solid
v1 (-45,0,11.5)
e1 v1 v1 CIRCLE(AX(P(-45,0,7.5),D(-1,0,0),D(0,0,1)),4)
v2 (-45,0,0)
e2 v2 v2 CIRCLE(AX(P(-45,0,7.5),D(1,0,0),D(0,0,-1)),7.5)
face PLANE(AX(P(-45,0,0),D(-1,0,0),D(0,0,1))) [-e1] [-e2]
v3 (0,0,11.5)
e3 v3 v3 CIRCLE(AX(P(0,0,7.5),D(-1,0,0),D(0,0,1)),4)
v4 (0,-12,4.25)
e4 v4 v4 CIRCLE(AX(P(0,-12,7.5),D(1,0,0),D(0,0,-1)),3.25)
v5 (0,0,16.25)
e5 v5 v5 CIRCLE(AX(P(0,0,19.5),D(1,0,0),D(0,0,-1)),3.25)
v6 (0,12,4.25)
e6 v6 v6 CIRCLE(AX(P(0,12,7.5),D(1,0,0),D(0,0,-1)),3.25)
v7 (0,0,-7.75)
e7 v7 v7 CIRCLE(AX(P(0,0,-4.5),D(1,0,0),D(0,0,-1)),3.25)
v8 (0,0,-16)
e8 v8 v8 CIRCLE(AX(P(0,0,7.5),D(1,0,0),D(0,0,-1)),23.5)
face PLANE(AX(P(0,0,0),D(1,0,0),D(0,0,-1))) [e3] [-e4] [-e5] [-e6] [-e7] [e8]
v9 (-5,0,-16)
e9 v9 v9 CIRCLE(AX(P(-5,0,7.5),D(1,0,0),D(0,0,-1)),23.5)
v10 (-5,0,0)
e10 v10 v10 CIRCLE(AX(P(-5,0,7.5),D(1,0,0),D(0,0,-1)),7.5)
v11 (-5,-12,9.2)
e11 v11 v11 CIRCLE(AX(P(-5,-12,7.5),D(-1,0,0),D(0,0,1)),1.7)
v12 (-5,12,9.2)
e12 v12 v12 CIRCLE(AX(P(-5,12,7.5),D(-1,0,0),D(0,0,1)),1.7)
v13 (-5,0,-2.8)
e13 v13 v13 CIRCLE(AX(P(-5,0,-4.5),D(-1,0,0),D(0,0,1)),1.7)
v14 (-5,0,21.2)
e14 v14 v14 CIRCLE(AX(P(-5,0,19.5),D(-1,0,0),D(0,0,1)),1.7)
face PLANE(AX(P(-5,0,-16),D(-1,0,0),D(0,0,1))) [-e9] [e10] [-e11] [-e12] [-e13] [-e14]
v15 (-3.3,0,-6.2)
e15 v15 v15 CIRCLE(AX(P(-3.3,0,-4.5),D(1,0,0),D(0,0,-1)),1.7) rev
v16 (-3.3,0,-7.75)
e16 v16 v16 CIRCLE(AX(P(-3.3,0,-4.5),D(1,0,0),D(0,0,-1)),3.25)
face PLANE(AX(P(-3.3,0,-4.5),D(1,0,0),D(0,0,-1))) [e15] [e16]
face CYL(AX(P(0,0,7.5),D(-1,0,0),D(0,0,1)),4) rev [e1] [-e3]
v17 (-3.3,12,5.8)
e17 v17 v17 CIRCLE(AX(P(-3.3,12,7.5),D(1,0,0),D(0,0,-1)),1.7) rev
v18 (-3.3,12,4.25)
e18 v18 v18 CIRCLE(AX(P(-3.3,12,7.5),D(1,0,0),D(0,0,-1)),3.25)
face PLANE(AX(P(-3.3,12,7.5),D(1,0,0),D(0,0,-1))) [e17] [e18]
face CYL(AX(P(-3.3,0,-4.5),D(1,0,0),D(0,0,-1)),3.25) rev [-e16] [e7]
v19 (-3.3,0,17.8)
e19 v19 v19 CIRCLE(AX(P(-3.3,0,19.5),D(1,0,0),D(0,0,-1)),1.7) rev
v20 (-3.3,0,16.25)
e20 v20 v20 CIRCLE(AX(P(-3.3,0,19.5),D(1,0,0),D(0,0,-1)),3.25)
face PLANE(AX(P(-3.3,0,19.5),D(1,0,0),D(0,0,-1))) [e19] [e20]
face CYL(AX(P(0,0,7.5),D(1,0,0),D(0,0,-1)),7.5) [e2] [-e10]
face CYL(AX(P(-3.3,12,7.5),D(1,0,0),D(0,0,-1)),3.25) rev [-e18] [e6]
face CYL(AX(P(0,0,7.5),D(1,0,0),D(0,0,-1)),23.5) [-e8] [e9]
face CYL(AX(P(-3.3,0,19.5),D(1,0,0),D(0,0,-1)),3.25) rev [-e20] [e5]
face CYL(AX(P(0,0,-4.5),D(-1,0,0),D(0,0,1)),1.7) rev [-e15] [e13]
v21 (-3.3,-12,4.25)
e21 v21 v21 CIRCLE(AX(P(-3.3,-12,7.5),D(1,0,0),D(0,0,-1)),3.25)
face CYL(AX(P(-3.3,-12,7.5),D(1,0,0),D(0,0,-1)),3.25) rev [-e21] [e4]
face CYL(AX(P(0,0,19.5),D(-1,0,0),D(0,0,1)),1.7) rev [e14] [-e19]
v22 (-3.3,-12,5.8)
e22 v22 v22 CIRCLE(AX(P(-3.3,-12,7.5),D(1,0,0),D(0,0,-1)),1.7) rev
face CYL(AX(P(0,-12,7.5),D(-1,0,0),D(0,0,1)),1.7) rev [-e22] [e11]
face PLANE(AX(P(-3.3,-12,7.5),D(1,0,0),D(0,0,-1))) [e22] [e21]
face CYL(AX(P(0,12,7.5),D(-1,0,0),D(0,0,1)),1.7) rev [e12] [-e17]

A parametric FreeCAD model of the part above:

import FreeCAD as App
import Part
import Sketcher
from FreeCAD import Vector
Q = App.Units.Quantity


def add_polygon(sketch, points):
    """Adds a closed chain of lines whose ends are joined by coincident constraints."""
    first, n = sketch.GeometryCount, len(points)
    for a, b in zip(points, points[1:] + points[:1]):
        sketch.addGeometry(Part.LineSegment(App.Vector(*a, 0), App.Vector(*b, 0)), False)
    for i in range(n):
        sketch.addConstraint(Sketcher.Constraint("Coincident", first + i, 2, first + (i + 1) % n, 1))

doc = App.newDocument("Part")
body = doc.addObject("PartDesign::Body", "Body")

# Sketch on XZ plane
sketch1 = doc.addObject("Sketcher::SketchObject", "Sketch")
body.addObject(sketch1)
sketch1.AttachmentSupport = (doc.XZ_Plane, [""])
sketch1.MapMode = "FlatFace"
add_polygon(sketch1, [(0, -16), (-5, -16), (-5, 0), (-45, 0), (-45, 7.5), (0, 7.5)])  # lines 0-5
sketch1.addGeometry(Part.LineSegment(Vector(0, 7.5, 0), Vector(-45, 7.5, 0)), True)  # axis
sketch1.addConstraint([
    Sketcher.Constraint("Horizontal", 0),
    Sketcher.Constraint("Vertical", 1),
    Sketcher.Constraint("Horizontal", 2),
    Sketcher.Constraint("Vertical", 3),
    Sketcher.Constraint("Horizontal", 4),
    Sketcher.Constraint("Vertical", 5),
    Sketcher.Constraint("Horizontal", 6),
    Sketcher.Constraint("Coincident", 6, 1, 4, 2),
    Sketcher.Constraint("PointOnObject", 1, 2, -1),
    Sketcher.Constraint("PointOnObject", 4, 2, -2),
    Sketcher.Constraint("Vertical", 2, 2, 6, 2),
    Sketcher.Constraint("DistanceX", 0, 2, 0, 1, Q("5 mm")),
    Sketcher.Constraint("DistanceX", 2, 2, 2, 1, Q("40 mm")),
    Sketcher.Constraint("DistanceY", 1, 1, 1, 2, Q("16 mm")),
    Sketcher.Constraint("DistanceY", 3, 1, 3, 2, Q("7.5 mm")),
])
revolution = doc.addObject("PartDesign::Revolution", "Revolution")
body.addObject(revolution)
revolution.Profile = sketch1
revolution.ReferenceAxis = (sketch1, ["Axis0"])
revolution.Angle = 360

# Sketch on YZ plane
sketch2 = doc.addObject("Sketcher::SketchObject", "Sketch001")
body.addObject(sketch2)
sketch2.AttachmentSupport = (doc.YZ_Plane, [""])
sketch2.MapMode = "FlatFace"
sketch2.AttachmentOffset = App.Placement(Vector(0, 0, -5), App.Rotation())
sketch2.addGeometry([
    Part.Circle(Vector(12, 7.5, 0), Vector(0, 0, 1), 1.7),
    Part.Circle(Vector(0, 19.5, 0), Vector(0, 0, 1), 1.7),
    Part.Circle(Vector(-12, 7.5, 0), Vector(0, 0, 1), 1.7),
    Part.Circle(Vector(0, -4.5, 0), Vector(0, 0, 1), 1.7),
], False)
sketch2.addConstraint([
    Sketcher.Constraint("Equal", 0, 1),
    Sketcher.Constraint("Equal", 1, 2),
    Sketcher.Constraint("Equal", 2, 3),
    Sketcher.Constraint("Symmetric", 0, 3, 2, 3, -2),
    Sketcher.Constraint("PointOnObject", 1, 3, -2),
    Sketcher.Constraint("PointOnObject", 3, 3, -2),
    Sketcher.Constraint("Diameter", 0, Q("3.4 mm")),
    Sketcher.Constraint("DistanceX", -1, 1, 0, 3, Q("12 mm")),
    Sketcher.Constraint("DistanceY", 0, 3, 1, 3, Q("12 mm")),
    Sketcher.Constraint("DistanceY", 3, 3, 0, 3, Q("12 mm")),
    Sketcher.Constraint("DistanceY", -1, 1, 0, 3, Q("7.5 mm")),
])
pocket1 = doc.addObject("PartDesign::Pocket", "Pocket")
body.addObject(pocket1)
pocket1.Profile = sketch2
pocket1.Type = "ThroughAll"
pocket1.Reversed = True

# Sketch on YZ plane
sketch3 = doc.addObject("Sketcher::SketchObject", "Sketch002")
body.addObject(sketch3)
sketch3.AttachmentSupport = (doc.YZ_Plane, [""])
sketch3.MapMode = "FlatFace"
sketch3.addGeometry([
    Part.Circle(Vector(12, 7.5, 0), Vector(0, 0, 1), 3.25),
    Part.Circle(Vector(0, 19.5, 0), Vector(0, 0, 1), 3.25),
    Part.Circle(Vector(0, -4.5, 0), Vector(0, 0, 1), 3.25),
    Part.Circle(Vector(-12, 7.5, 0), Vector(0, 0, 1), 3.25),
], False)
sketch3.addConstraint([
    Sketcher.Constraint("Equal", 0, 1),
    Sketcher.Constraint("Equal", 1, 2),
    Sketcher.Constraint("Equal", 2, 3),
    Sketcher.Constraint("Symmetric", 0, 3, 3, 3, -2),
    Sketcher.Constraint("PointOnObject", 1, 3, -2),
    Sketcher.Constraint("PointOnObject", 2, 3, -2),
    Sketcher.Constraint("Diameter", 0, Q("6.5 mm")),
    Sketcher.Constraint("DistanceX", -1, 1, 0, 3, Q("12 mm")),
    Sketcher.Constraint("DistanceY", 0, 3, 1, 3, Q("12 mm")),
    Sketcher.Constraint("DistanceY", 2, 3, 0, 3, Q("12 mm")),
    Sketcher.Constraint("DistanceY", -1, 1, 0, 3, Q("7.5 mm")),
])
pocket2 = doc.addObject("PartDesign::Pocket", "Pocket001")
body.addObject(pocket2)
pocket2.Profile = sketch3
pocket2.Length = 3.3

# Sketch on YZ plane
sketch4 = doc.addObject("Sketcher::SketchObject", "Sketch003")
body.addObject(sketch4)
sketch4.AttachmentSupport = (doc.YZ_Plane, [""])
sketch4.MapMode = "FlatFace"
sketch4.AttachmentOffset = App.Placement(Vector(0, 0, -45), App.Rotation())
sketch4.addGeometry(Part.Circle(Vector(0, 7.5, 0), Vector(0, 0, 1), 4), False)
sketch4.addConstraint([
    Sketcher.Constraint("PointOnObject", 0, 3, -2),
    Sketcher.Constraint("Diameter", 0, Q("8 mm")),
    Sketcher.Constraint("DistanceY", -1, 1, 0, 3, Q("7.5 mm")),
])
pocket3 = doc.addObject("PartDesign::Pocket", "Pocket002")
body.addObject(pocket3)
pocket3.Profile = sketch4
pocket3.Type = "ThroughAll"
pocket3.Reversed = True

doc.recompute()
